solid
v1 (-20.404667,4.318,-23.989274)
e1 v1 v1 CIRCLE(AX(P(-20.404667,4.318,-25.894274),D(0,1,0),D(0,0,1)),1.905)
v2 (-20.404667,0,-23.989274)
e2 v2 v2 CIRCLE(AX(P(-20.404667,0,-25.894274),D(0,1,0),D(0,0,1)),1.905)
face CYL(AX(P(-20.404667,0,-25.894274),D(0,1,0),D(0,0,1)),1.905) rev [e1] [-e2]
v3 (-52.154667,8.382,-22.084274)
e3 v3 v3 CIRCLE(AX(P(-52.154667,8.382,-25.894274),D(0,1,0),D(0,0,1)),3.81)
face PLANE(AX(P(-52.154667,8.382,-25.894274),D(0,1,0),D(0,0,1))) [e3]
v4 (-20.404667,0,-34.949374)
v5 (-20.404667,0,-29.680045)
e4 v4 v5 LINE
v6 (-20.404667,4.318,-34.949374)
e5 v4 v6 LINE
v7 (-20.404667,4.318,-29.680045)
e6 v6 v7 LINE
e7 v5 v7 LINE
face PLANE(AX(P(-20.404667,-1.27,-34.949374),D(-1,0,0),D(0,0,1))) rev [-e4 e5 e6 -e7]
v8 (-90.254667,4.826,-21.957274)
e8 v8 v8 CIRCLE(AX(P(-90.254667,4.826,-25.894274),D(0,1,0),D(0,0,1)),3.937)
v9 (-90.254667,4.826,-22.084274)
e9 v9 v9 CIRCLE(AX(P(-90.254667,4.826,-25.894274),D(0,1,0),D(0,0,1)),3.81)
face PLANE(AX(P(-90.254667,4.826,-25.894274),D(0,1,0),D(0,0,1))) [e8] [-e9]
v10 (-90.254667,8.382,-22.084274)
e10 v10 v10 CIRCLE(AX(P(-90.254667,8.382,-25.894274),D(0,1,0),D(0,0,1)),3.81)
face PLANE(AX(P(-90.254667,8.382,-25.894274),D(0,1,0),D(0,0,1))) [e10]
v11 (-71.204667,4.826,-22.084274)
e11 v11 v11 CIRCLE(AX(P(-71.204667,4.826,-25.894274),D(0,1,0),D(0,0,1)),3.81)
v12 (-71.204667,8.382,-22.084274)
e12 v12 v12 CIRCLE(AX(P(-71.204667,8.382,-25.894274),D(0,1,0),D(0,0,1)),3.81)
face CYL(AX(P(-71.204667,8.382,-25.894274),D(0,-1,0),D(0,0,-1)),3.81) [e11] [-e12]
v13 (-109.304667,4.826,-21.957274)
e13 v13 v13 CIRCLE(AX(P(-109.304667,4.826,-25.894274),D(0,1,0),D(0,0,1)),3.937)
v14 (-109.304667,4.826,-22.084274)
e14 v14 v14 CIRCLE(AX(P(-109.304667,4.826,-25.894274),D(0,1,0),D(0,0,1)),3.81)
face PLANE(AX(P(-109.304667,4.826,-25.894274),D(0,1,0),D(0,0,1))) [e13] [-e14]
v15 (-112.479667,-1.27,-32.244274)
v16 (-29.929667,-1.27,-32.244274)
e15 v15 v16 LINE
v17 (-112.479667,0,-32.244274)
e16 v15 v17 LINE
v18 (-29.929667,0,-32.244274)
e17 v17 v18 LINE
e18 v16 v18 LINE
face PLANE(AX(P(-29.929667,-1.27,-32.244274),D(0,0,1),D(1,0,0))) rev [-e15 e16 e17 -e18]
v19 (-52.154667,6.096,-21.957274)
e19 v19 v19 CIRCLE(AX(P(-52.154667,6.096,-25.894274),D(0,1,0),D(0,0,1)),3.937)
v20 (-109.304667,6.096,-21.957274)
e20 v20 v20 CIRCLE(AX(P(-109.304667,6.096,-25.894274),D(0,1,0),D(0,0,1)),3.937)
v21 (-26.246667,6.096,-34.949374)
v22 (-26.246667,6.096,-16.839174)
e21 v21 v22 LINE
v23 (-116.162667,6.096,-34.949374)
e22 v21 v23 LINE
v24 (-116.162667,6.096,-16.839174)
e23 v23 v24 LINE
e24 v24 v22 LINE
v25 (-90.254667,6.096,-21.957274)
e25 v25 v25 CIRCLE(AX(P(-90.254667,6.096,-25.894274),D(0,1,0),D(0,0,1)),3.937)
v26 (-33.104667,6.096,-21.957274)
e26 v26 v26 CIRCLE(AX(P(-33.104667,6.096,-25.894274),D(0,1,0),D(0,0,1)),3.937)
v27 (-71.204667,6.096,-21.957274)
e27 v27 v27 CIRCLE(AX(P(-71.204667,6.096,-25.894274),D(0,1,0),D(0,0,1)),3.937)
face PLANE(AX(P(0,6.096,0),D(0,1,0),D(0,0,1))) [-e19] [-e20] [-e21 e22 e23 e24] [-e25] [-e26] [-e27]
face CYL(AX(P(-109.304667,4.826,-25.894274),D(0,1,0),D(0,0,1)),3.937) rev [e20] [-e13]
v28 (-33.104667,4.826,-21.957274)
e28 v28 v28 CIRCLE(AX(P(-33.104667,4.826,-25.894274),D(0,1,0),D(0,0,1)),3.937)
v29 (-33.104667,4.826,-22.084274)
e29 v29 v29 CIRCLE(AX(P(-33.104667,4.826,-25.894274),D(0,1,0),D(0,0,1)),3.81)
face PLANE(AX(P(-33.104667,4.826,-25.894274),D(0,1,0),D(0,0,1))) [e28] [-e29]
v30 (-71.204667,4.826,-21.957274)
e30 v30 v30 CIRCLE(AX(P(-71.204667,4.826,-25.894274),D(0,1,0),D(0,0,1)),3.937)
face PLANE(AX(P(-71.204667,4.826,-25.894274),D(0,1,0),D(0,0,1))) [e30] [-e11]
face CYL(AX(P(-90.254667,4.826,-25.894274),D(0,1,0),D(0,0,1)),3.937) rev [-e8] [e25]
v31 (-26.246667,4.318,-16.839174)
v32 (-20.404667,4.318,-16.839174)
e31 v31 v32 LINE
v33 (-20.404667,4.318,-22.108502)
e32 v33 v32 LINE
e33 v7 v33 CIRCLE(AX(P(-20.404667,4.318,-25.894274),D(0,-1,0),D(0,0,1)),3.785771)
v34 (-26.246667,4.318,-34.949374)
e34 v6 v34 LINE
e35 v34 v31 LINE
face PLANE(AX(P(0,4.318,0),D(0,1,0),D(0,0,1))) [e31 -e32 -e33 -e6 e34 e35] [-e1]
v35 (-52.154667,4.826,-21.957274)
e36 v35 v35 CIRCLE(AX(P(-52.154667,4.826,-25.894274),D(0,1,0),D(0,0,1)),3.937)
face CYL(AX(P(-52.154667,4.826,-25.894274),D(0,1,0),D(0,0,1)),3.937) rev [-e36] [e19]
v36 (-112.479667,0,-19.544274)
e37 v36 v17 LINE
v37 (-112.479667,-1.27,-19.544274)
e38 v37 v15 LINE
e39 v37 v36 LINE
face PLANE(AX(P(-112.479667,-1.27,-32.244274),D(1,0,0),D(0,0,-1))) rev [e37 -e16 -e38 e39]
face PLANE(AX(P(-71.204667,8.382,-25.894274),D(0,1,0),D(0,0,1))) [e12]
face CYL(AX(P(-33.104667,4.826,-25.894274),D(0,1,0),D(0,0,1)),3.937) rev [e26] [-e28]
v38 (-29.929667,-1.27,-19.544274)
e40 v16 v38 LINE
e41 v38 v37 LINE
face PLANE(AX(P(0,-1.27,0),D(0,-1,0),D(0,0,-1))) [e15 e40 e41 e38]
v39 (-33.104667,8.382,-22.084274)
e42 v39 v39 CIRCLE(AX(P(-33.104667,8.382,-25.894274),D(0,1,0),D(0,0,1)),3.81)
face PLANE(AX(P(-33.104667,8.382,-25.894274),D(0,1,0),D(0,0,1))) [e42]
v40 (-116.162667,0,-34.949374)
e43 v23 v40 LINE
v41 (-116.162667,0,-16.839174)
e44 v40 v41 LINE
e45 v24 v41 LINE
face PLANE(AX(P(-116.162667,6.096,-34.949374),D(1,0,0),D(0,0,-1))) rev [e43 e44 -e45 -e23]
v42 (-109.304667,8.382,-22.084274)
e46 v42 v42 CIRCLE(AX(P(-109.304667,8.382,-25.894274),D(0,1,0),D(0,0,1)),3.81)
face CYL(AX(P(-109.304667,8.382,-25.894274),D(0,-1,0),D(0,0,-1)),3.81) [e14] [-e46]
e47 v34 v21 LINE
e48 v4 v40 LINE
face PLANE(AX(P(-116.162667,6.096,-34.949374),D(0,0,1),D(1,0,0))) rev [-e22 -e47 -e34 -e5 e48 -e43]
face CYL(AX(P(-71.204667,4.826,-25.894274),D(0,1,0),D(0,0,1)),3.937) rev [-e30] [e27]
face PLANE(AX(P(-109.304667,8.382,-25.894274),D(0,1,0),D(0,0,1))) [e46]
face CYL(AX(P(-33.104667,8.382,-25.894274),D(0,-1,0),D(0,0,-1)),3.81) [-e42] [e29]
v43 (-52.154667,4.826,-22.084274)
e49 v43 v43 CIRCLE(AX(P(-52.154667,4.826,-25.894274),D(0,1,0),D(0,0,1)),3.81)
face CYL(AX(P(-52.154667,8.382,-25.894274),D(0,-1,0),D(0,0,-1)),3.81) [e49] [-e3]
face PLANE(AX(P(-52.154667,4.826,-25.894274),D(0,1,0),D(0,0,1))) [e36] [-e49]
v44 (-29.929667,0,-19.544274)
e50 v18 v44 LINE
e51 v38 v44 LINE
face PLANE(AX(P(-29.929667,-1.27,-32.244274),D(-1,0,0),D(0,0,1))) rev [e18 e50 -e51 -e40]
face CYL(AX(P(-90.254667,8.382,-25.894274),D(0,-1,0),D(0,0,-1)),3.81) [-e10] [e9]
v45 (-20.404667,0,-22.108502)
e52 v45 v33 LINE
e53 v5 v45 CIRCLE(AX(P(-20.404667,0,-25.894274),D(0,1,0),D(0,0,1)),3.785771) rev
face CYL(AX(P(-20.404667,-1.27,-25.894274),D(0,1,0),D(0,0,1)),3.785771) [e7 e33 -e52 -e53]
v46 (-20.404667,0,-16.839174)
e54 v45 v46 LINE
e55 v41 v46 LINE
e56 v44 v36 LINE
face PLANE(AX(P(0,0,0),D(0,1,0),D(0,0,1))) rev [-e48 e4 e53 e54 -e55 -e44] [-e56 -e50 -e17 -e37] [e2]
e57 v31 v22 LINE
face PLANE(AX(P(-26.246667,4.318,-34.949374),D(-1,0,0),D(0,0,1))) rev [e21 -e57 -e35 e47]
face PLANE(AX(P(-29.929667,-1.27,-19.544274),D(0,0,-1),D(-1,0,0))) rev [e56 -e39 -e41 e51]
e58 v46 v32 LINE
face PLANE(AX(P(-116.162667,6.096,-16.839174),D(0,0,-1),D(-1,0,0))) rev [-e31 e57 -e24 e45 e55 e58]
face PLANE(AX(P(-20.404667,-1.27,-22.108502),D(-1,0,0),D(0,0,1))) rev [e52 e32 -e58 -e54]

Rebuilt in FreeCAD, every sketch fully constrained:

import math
import FreeCAD as App
import Part
import Sketcher

V = App.Vector
Q = App.Units.Quantity


def add_polygon(sketch, points):
    """Adds a closed chain of lines whose ends are joined by coincident constraints."""
    first, n = sketch.GeometryCount, len(points)
    for a, b in zip(points, points[1:] + points[:1]):
        sketch.addGeometry(Part.LineSegment(App.Vector(*a, 0), App.Vector(*b, 0)), False)
    for i in range(n):
        sketch.addConstraint(Sketcher.Constraint("Coincident", first + i, 2, first + (i + 1) % n, 1))

doc = App.newDocument("Part")
body = doc.addObject("PartDesign::Body", "Body")

sketch1 = doc.addObject("Sketcher::SketchObject", "Sketch")
body.addObject(sketch1)
sketch1.AttachmentSupport = (doc.XZ_Plane, [""])
sketch1.MapMode = "FlatFace"
add_polygon(sketch1, [(-116.162667, -34.949374), (-116.162667, -16.839174), (-16.594667, -16.839174), (-16.594667, -34.949374)])
sketch1.addConstraint([
    Sketcher.Constraint("Vertical", 0),
    Sketcher.Constraint("Horizontal", 1),
    Sketcher.Constraint("Vertical", 2),
    Sketcher.Constraint("Horizontal", 3),
    Sketcher.Constraint("DistanceX", 1, 1, 1, 2, Q("3.92 in")),
    Sketcher.Constraint("DistanceY", 0, 1, 0, 2, Q("0.713 in")),
    Sketcher.Constraint("DistanceX", 0, 2, -1, 1, Q("116.162667 mm")),
    Sketcher.Constraint("DistanceY", 0, 2, -1, 1, Q("16.839174 mm")),
])
pad1 = doc.addObject("PartDesign::Pad", "Pad")
body.addObject(pad1)
pad1.Profile = sketch1
pad1.Length = Q("0.24 in")
pad1.Reversed = True

sketch2 = doc.addObject("Sketcher::SketchObject", "Sketch001")
body.addObject(sketch2)
sketch2.AttachmentSupport = (doc.XZ_Plane, [""])
sketch2.MapMode = "FlatFace"
sketch2.AttachmentOffset = App.Placement(V(0, 0, -0.24 * 25.4), App.Rotation())
add_polygon(sketch2, [(-26.246667, -34.949374), (-26.246667, -16.839174), (-16.594667, -16.839174), (-16.594667, -34.949374)])
sketch2.addConstraint([
    Sketcher.Constraint("Vertical", 0),
    Sketcher.Constraint("Horizontal", 1),
    Sketcher.Constraint("Vertical", 2),
    Sketcher.Constraint("Horizontal", 3),
    Sketcher.Constraint("DistanceX", 1, 1, 1, 2, Q("0.38 in")),
    Sketcher.Constraint("DistanceY", 0, 1, 0, 2, Q("0.713 in")),
    Sketcher.Constraint("DistanceX", 0, 2, -1, 1, Q("26.246667 mm")),
    Sketcher.Constraint("DistanceY", 0, 2, -1, 1, Q("16.839174 mm")),
])
pocket1 = doc.addObject("PartDesign::Pocket", "Pocket")
body.addObject(pocket1)
pocket1.Profile = sketch2
pocket1.Length = Q("0.07 in")
pocket1.Reversed = True

sketch3 = doc.addObject("Sketcher::SketchObject", "Sketch002")
body.addObject(sketch3)
sketch3.AttachmentSupport = (doc.XZ_Plane, [""])
sketch3.MapMode = "FlatFace"
sketch3.AttachmentOffset = App.Placement(V(0, 0, -0.17 * 25.4), App.Rotation())
sketch3.addGeometry(Part.Circle(V(-20.404667, -25.894274, 0), V(0, 0, 1), 1.905), False)
sketch3.addConstraint([
    Sketcher.Constraint("Diameter", 0, Q("0.15 in")),
    Sketcher.Constraint("DistanceX", 0, 3, -1, 1, Q("20.404667 mm")),
    Sketcher.Constraint("DistanceY", 0, 3, -1, 1, Q("25.894274 mm")),
])
pocket2 = doc.addObject("PartDesign::Pocket", "Pocket001")
body.addObject(pocket2)
pocket2.Profile = sketch3
pocket2.Type = "ThroughAll"
pocket2.Reversed = True

sketch4 = doc.addObject("Sketcher::SketchObject", "Sketch003")
body.addObject(sketch4)
sketch4.AttachmentSupport = (doc.XZ_Plane, [""])
sketch4.MapMode = "FlatFace"
sketch4.AttachmentOffset = App.Placement(V(0, 0, -0.24 * 25.4), App.Rotation())
sketch4.addGeometry([
    Part.Circle(V(-33.104667, -25.894274, 0), V(0, 0, 1), 3.937),
    Part.Circle(V(-52.154667, -25.894274, 0), V(0, 0, 1), 3.937),
    Part.Circle(V(-71.204667, -25.894274, 0), V(0, 0, 1), 3.937),
    Part.Circle(V(-90.254667, -25.894274, 0), V(0, 0, 1), 3.937),
    Part.Circle(V(-109.304667, -25.894274, 0), V(0, 0, 1), 3.937),
], False)
sketch4.addConstraint([
    Sketcher.Constraint("Equal", 0, 1),
    Sketcher.Constraint("Equal", 1, 2),
    Sketcher.Constraint("Equal", 2, 3),
    Sketcher.Constraint("Equal", 3, 4),
    Sketcher.Constraint("Horizontal", 0, 3, 1, 3),
    Sketcher.Constraint("Horizontal", 1, 3, 2, 3),
    Sketcher.Constraint("Horizontal", 2, 3, 3, 3),
    Sketcher.Constraint("Horizontal", 3, 3, 4, 3),
    Sketcher.Constraint("Diameter", 0, Q("0.31 in")),
    Sketcher.Constraint("DistanceX", 4, 3, 0, 3, Q("3 in")),
    Sketcher.Constraint("DistanceX", 2, 3, 0, 3, Q("1.5 in")),
    Sketcher.Constraint("DistanceX", 3, 3, 1, 3, Q("1.5 in")),
    Sketcher.Constraint("DistanceX", 1, 3, 0, 3, Q("0.75 in")),
    Sketcher.Constraint("DistanceX", 0, 3, -1, 1, Q("33.104667 mm")),
    Sketcher.Constraint("DistanceY", 0, 3, -1, 1, Q("25.894274 mm")),
])
pocket3 = doc.addObject("PartDesign::Pocket", "Pocket002")
body.addObject(pocket3)
pocket3.Profile = sketch4
pocket3.Length = Q("0.05 in")
pocket3.Reversed = True

sketch5 = doc.addObject("Sketcher::SketchObject", "Sketch004")
body.addObject(sketch5)
sketch5.AttachmentSupport = (doc.XZ_Plane, [""])
sketch5.MapMode = "FlatFace"
add_polygon(sketch5, [(-112.479667, -19.544274), (-112.479667, -32.244274), (-29.929667, -32.244274), (-29.929667, -19.544274)])
sketch5.addConstraint([
    Sketcher.Constraint("Vertical", 0),
    Sketcher.Constraint("Horizontal", 1),
    Sketcher.Constraint("Vertical", 2),
    Sketcher.Constraint("Horizontal", 3),
    Sketcher.Constraint("DistanceY", 0, 2, 0, 1, Q("0.5 in")),
    Sketcher.Constraint("DistanceX", 1, 1, 1, 2, Q("3.25 in")),
    Sketcher.Constraint("DistanceX", 0, 2, -1, 1, Q("112.479667 mm")),
    Sketcher.Constraint("DistanceY", 0, 2, -1, 1, Q("32.244274 mm")),
])
pad2 = doc.addObject("PartDesign::Pad", "Pad001")
body.addObject(pad2)
pad2.Profile = sketch5
pad2.Length = Q("0.05 in")

sketch6 = doc.addObject("Sketcher::SketchObject", "Sketch005")
body.addObject(sketch6)
sketch6.AttachmentSupport = (doc.XZ_Plane, [""])
sketch6.MapMode = "FlatFace"
sketch6.AttachmentOffset = App.Placement(V(0, 0, -0.17 * 25.4), App.Rotation())
sketch6.addGeometry([
    Part.LineSegment(V(-16.594667, -34.949374, 0), V(-20.404667, -34.949374, 0)),
    Part.LineSegment(V(-20.404667, -34.949374, 0), V(-20.404667, -29.680045, 0)),
    Part.ArcOfCircle(Part.Circle(V(-20.404667, -25.894274, 0), V(0, 0, 1), 3.785771), math.radians(-90), math.radians(90)),
    Part.LineSegment(V(-20.404667, -22.108502, 0), V(-20.404667, -16.839174, 0)),
    Part.LineSegment(V(-20.404667, -16.839174, 0), V(-16.594667, -16.839174, 0)),
    Part.LineSegment(V(-16.594667, -16.839174, 0), V(-16.594667, -34.949374, 0)),
], False)
sketch6.addConstraint([
    Sketcher.Constraint("Coincident", 0, 2, 1, 1),
    Sketcher.Constraint("Coincident", 1, 2, 2, 1),
    Sketcher.Constraint("Coincident", 2, 2, 3, 1),
    Sketcher.Constraint("Coincident", 3, 2, 4, 1),
    Sketcher.Constraint("Coincident", 4, 2, 5, 1),
    Sketcher.Constraint("Coincident", 5, 2, 0, 1),
    Sketcher.Constraint("Horizontal", 0),
    Sketcher.Constraint("Vertical", 1),
    Sketcher.Constraint("Vertical", 3),
    Sketcher.Constraint("Horizontal", 4),
    Sketcher.Constraint("Vertical", 5),
    Sketcher.Constraint("Vertical", 2, 3, 0, 2),
    Sketcher.Constraint("Vertical", 1, 2, 2, 2),
    Sketcher.Constraint("Equal", 1, 3),
    Sketcher.Constraint("DistanceX", 0, 2, 0, 1, Q("0.15 in")),
    Sketcher.Constraint("DistanceY", 5, 2, 5, 1, Q("0.713 in")),
    Sketcher.Constraint("Radius", 2, Q("3.785771 mm")),
    Sketcher.Constraint("DistanceX", 2, 3, -1, 1, Q("20.404667 mm")),
    Sketcher.Constraint("DistanceY", 2, 3, -1, 1, Q("25.894274 mm")),
])
pocket4 = doc.addObject("PartDesign::Pocket", "Pocket003")
body.addObject(pocket4)
pocket4.Profile = sketch6
pocket4.Type = "ThroughAll"
pocket4.Reversed = True

sketch7 = doc.addObject("Sketcher::SketchObject", "Sketch006")
body.addObject(sketch7)
sketch7.AttachmentSupport = (doc.XZ_Plane, [""])
sketch7.MapMode = "FlatFace"
sketch7.AttachmentOffset = App.Placement(V(0, 0, -0.19 * 25.4), App.Rotation())
sketch7.addGeometry([
    Part.Circle(V(-33.104667, -25.894274, 0), V(0, 0, 1), 3.81),
    Part.Circle(V(-52.154667, -25.894274, 0), V(0, 0, 1), 3.81),
    Part.Circle(V(-71.204667, -25.894274, 0), V(0, 0, 1), 3.81),
    Part.Circle(V(-90.254667, -25.894274, 0), V(0, 0, 1), 3.81),
    Part.Circle(V(-109.304667, -25.894274, 0), V(0, 0, 1), 3.81),
], False)
sketch7.addConstraint([
    Sketcher.Constraint("Equal", 0, 1),
    Sketcher.Constraint("Equal", 1, 2),
    Sketcher.Constraint("Equal", 2, 3),
    Sketcher.Constraint("Equal", 3, 4),
    Sketcher.Constraint("Horizontal", 0, 3, 1, 3),
    Sketcher.Constraint("Horizontal", 1, 3, 2, 3),
    Sketcher.Constraint("Horizontal", 2, 3, 3, 3),
    Sketcher.Constraint("Horizontal", 3, 3, 4, 3),
    Sketcher.Constraint("Diameter", 0, Q("0.3 in")),
    Sketcher.Constraint("DistanceX", 4, 3, 0, 3, Q("3 in")),
    Sketcher.Constraint("DistanceX", 2, 3, 0, 3, Q("1.5 in")),
    Sketcher.Constraint("DistanceX", 3, 3, 1, 3, Q("1.5 in")),
    Sketcher.Constraint("DistanceX", 1, 3, 0, 3, Q("0.75 in")),
    Sketcher.Constraint("DistanceX", 0, 3, -1, 1, Q("33.104667 mm")),
    Sketcher.Constraint("DistanceY", 0, 3, -1, 1, Q("25.894274 mm")),
])
pad3 = doc.addObject("PartDesign::Pad", "Pad002")
body.addObject(pad3)
pad3.Profile = sketch7
pad3.Length = Q("0.14 in")
pad3.Reversed = True

doc.recompute()
